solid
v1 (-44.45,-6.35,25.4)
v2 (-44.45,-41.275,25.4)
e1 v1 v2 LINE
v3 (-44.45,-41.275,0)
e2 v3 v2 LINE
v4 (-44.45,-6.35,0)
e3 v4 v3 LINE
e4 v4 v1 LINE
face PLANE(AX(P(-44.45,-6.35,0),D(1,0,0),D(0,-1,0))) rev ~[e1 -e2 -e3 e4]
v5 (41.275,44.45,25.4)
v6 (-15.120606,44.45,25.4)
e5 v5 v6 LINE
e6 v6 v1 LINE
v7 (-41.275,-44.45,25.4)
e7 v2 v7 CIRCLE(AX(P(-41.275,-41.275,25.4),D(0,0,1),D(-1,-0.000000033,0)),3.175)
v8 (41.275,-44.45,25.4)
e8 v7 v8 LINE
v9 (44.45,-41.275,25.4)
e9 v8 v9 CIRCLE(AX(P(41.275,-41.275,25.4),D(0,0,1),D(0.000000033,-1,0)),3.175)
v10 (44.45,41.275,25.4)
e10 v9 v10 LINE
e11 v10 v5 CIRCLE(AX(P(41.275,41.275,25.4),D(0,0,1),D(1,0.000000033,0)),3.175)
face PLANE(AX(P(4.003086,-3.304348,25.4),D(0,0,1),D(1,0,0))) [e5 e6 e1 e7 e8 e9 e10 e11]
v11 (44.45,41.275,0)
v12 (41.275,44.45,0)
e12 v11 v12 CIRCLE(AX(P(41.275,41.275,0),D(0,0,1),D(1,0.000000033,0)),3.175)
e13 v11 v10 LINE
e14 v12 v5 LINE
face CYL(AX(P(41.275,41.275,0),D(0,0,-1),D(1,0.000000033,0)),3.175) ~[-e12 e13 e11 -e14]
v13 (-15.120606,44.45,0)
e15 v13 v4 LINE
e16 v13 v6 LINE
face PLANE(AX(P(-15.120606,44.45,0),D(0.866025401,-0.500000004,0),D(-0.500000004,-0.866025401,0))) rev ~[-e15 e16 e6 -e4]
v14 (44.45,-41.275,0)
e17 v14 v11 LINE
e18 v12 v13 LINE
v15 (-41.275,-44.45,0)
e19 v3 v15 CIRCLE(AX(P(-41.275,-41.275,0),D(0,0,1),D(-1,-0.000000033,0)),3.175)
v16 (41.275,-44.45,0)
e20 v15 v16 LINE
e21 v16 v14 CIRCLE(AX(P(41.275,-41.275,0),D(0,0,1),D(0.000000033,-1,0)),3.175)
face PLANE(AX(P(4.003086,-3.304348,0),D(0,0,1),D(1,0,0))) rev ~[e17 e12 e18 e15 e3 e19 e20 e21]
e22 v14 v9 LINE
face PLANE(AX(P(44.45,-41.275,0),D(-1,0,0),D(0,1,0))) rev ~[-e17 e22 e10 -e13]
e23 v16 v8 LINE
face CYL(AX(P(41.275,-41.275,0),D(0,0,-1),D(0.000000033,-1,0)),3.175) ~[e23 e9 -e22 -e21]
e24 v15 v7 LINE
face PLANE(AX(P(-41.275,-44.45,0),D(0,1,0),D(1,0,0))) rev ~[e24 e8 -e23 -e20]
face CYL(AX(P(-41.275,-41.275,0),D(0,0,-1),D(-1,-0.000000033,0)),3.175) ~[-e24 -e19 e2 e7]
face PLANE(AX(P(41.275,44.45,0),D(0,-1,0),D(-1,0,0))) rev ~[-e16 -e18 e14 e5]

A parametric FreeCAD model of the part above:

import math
import FreeCAD as App
import Part
import Sketcher
from FreeCAD import Vector
Q = App.Units.Quantity

doc = App.newDocument("Part")
body = doc.addObject("PartDesign::Body", "Body")

# Sketch on XY plane
sketch1 = body.newObject("Sketcher::SketchObject", "Sketch")
sketch1.AttachmentSupport = (doc.getObject("XY_Plane"), [""])
sketch1.MapMode = "FlatFace"
sketch1.addGeometry([
    Part.ArcOfCircle(Part.Circle(Vector(41.3, 41.3, 0), Vector(0, 0, 1), 3.2), math.radians(0), math.radians(90)),  # 0
    Part.LineSegment(Vector(41.3, 44.5, 0), Vector(-15.1, 44.5, 0)),  # 1
    Part.LineSegment(Vector(-15.1, 44.5, 0), Vector(-44.5, -6.3, 0)),  # 2
    Part.LineSegment(Vector(-44.5, -6.3, 0), Vector(-44.5, -41.3, 0)),  # 3
    Part.ArcOfCircle(Part.Circle(Vector(-41.3, -41.3, 0), Vector(0, 0, 1), 3.2), math.radians(-180), math.radians(-90)),  # 4
    Part.LineSegment(Vector(-41.3, -44.5, 0), Vector(41.3, -44.5, 0)),  # 5
    Part.ArcOfCircle(Part.Circle(Vector(41.3, -41.3, 0), Vector(0, 0, 1), 3.2), math.radians(-90), math.radians(0)),  # 6
    Part.LineSegment(Vector(44.5, -41.3, 0), Vector(44.5, 41.3, 0)),  # 7
], False)
sketch1.addConstraint([
    Sketcher.Constraint("Tangent", 0, 2, 1, 1),
    Sketcher.Constraint("Coincident", 1, 2, 2, 1),
    Sketcher.Constraint("Coincident", 2, 2, 3, 1),
    Sketcher.Constraint("Tangent", 3, 2, 4, 1),
    Sketcher.Constraint("Tangent", 4, 2, 5, 1),
    Sketcher.Constraint("Tangent", 5, 2, 6, 1),
    Sketcher.Constraint("Tangent", 6, 2, 7, 1),
    Sketcher.Constraint("Tangent", 7, 2, 0, 1),
    Sketcher.Constraint("Horizontal", 1),
    Sketcher.Constraint("Vertical", 3),
    Sketcher.Constraint("Horizontal", 5),
    Sketcher.Constraint("Vertical", 7),
    Sketcher.Constraint("Equal", 0, 4),
    Sketcher.Constraint("Equal", 4, 6),
    Sketcher.Constraint("Symmetric", 0, 3, 4, 3, -1, 1),
    Sketcher.Constraint("Equal", 5, 7),
    Sketcher.Constraint("Angle", 2, Q("-120 deg")),
    Sketcher.Constraint("Radius", 0, Q("0.125 in")),
    Sketcher.Constraint("DistanceY", 2, 2, 1, 2, Q("2 in")),
    Sketcher.Constraint("DistanceX", 5, 1, 5, 2, Q("3.25 in")),
])
pad1 = body.newObject("PartDesign::Pad", "Pad")
pad1.Profile = sketch1
pad1.Length = Q("1 in")

doc.recompute()
